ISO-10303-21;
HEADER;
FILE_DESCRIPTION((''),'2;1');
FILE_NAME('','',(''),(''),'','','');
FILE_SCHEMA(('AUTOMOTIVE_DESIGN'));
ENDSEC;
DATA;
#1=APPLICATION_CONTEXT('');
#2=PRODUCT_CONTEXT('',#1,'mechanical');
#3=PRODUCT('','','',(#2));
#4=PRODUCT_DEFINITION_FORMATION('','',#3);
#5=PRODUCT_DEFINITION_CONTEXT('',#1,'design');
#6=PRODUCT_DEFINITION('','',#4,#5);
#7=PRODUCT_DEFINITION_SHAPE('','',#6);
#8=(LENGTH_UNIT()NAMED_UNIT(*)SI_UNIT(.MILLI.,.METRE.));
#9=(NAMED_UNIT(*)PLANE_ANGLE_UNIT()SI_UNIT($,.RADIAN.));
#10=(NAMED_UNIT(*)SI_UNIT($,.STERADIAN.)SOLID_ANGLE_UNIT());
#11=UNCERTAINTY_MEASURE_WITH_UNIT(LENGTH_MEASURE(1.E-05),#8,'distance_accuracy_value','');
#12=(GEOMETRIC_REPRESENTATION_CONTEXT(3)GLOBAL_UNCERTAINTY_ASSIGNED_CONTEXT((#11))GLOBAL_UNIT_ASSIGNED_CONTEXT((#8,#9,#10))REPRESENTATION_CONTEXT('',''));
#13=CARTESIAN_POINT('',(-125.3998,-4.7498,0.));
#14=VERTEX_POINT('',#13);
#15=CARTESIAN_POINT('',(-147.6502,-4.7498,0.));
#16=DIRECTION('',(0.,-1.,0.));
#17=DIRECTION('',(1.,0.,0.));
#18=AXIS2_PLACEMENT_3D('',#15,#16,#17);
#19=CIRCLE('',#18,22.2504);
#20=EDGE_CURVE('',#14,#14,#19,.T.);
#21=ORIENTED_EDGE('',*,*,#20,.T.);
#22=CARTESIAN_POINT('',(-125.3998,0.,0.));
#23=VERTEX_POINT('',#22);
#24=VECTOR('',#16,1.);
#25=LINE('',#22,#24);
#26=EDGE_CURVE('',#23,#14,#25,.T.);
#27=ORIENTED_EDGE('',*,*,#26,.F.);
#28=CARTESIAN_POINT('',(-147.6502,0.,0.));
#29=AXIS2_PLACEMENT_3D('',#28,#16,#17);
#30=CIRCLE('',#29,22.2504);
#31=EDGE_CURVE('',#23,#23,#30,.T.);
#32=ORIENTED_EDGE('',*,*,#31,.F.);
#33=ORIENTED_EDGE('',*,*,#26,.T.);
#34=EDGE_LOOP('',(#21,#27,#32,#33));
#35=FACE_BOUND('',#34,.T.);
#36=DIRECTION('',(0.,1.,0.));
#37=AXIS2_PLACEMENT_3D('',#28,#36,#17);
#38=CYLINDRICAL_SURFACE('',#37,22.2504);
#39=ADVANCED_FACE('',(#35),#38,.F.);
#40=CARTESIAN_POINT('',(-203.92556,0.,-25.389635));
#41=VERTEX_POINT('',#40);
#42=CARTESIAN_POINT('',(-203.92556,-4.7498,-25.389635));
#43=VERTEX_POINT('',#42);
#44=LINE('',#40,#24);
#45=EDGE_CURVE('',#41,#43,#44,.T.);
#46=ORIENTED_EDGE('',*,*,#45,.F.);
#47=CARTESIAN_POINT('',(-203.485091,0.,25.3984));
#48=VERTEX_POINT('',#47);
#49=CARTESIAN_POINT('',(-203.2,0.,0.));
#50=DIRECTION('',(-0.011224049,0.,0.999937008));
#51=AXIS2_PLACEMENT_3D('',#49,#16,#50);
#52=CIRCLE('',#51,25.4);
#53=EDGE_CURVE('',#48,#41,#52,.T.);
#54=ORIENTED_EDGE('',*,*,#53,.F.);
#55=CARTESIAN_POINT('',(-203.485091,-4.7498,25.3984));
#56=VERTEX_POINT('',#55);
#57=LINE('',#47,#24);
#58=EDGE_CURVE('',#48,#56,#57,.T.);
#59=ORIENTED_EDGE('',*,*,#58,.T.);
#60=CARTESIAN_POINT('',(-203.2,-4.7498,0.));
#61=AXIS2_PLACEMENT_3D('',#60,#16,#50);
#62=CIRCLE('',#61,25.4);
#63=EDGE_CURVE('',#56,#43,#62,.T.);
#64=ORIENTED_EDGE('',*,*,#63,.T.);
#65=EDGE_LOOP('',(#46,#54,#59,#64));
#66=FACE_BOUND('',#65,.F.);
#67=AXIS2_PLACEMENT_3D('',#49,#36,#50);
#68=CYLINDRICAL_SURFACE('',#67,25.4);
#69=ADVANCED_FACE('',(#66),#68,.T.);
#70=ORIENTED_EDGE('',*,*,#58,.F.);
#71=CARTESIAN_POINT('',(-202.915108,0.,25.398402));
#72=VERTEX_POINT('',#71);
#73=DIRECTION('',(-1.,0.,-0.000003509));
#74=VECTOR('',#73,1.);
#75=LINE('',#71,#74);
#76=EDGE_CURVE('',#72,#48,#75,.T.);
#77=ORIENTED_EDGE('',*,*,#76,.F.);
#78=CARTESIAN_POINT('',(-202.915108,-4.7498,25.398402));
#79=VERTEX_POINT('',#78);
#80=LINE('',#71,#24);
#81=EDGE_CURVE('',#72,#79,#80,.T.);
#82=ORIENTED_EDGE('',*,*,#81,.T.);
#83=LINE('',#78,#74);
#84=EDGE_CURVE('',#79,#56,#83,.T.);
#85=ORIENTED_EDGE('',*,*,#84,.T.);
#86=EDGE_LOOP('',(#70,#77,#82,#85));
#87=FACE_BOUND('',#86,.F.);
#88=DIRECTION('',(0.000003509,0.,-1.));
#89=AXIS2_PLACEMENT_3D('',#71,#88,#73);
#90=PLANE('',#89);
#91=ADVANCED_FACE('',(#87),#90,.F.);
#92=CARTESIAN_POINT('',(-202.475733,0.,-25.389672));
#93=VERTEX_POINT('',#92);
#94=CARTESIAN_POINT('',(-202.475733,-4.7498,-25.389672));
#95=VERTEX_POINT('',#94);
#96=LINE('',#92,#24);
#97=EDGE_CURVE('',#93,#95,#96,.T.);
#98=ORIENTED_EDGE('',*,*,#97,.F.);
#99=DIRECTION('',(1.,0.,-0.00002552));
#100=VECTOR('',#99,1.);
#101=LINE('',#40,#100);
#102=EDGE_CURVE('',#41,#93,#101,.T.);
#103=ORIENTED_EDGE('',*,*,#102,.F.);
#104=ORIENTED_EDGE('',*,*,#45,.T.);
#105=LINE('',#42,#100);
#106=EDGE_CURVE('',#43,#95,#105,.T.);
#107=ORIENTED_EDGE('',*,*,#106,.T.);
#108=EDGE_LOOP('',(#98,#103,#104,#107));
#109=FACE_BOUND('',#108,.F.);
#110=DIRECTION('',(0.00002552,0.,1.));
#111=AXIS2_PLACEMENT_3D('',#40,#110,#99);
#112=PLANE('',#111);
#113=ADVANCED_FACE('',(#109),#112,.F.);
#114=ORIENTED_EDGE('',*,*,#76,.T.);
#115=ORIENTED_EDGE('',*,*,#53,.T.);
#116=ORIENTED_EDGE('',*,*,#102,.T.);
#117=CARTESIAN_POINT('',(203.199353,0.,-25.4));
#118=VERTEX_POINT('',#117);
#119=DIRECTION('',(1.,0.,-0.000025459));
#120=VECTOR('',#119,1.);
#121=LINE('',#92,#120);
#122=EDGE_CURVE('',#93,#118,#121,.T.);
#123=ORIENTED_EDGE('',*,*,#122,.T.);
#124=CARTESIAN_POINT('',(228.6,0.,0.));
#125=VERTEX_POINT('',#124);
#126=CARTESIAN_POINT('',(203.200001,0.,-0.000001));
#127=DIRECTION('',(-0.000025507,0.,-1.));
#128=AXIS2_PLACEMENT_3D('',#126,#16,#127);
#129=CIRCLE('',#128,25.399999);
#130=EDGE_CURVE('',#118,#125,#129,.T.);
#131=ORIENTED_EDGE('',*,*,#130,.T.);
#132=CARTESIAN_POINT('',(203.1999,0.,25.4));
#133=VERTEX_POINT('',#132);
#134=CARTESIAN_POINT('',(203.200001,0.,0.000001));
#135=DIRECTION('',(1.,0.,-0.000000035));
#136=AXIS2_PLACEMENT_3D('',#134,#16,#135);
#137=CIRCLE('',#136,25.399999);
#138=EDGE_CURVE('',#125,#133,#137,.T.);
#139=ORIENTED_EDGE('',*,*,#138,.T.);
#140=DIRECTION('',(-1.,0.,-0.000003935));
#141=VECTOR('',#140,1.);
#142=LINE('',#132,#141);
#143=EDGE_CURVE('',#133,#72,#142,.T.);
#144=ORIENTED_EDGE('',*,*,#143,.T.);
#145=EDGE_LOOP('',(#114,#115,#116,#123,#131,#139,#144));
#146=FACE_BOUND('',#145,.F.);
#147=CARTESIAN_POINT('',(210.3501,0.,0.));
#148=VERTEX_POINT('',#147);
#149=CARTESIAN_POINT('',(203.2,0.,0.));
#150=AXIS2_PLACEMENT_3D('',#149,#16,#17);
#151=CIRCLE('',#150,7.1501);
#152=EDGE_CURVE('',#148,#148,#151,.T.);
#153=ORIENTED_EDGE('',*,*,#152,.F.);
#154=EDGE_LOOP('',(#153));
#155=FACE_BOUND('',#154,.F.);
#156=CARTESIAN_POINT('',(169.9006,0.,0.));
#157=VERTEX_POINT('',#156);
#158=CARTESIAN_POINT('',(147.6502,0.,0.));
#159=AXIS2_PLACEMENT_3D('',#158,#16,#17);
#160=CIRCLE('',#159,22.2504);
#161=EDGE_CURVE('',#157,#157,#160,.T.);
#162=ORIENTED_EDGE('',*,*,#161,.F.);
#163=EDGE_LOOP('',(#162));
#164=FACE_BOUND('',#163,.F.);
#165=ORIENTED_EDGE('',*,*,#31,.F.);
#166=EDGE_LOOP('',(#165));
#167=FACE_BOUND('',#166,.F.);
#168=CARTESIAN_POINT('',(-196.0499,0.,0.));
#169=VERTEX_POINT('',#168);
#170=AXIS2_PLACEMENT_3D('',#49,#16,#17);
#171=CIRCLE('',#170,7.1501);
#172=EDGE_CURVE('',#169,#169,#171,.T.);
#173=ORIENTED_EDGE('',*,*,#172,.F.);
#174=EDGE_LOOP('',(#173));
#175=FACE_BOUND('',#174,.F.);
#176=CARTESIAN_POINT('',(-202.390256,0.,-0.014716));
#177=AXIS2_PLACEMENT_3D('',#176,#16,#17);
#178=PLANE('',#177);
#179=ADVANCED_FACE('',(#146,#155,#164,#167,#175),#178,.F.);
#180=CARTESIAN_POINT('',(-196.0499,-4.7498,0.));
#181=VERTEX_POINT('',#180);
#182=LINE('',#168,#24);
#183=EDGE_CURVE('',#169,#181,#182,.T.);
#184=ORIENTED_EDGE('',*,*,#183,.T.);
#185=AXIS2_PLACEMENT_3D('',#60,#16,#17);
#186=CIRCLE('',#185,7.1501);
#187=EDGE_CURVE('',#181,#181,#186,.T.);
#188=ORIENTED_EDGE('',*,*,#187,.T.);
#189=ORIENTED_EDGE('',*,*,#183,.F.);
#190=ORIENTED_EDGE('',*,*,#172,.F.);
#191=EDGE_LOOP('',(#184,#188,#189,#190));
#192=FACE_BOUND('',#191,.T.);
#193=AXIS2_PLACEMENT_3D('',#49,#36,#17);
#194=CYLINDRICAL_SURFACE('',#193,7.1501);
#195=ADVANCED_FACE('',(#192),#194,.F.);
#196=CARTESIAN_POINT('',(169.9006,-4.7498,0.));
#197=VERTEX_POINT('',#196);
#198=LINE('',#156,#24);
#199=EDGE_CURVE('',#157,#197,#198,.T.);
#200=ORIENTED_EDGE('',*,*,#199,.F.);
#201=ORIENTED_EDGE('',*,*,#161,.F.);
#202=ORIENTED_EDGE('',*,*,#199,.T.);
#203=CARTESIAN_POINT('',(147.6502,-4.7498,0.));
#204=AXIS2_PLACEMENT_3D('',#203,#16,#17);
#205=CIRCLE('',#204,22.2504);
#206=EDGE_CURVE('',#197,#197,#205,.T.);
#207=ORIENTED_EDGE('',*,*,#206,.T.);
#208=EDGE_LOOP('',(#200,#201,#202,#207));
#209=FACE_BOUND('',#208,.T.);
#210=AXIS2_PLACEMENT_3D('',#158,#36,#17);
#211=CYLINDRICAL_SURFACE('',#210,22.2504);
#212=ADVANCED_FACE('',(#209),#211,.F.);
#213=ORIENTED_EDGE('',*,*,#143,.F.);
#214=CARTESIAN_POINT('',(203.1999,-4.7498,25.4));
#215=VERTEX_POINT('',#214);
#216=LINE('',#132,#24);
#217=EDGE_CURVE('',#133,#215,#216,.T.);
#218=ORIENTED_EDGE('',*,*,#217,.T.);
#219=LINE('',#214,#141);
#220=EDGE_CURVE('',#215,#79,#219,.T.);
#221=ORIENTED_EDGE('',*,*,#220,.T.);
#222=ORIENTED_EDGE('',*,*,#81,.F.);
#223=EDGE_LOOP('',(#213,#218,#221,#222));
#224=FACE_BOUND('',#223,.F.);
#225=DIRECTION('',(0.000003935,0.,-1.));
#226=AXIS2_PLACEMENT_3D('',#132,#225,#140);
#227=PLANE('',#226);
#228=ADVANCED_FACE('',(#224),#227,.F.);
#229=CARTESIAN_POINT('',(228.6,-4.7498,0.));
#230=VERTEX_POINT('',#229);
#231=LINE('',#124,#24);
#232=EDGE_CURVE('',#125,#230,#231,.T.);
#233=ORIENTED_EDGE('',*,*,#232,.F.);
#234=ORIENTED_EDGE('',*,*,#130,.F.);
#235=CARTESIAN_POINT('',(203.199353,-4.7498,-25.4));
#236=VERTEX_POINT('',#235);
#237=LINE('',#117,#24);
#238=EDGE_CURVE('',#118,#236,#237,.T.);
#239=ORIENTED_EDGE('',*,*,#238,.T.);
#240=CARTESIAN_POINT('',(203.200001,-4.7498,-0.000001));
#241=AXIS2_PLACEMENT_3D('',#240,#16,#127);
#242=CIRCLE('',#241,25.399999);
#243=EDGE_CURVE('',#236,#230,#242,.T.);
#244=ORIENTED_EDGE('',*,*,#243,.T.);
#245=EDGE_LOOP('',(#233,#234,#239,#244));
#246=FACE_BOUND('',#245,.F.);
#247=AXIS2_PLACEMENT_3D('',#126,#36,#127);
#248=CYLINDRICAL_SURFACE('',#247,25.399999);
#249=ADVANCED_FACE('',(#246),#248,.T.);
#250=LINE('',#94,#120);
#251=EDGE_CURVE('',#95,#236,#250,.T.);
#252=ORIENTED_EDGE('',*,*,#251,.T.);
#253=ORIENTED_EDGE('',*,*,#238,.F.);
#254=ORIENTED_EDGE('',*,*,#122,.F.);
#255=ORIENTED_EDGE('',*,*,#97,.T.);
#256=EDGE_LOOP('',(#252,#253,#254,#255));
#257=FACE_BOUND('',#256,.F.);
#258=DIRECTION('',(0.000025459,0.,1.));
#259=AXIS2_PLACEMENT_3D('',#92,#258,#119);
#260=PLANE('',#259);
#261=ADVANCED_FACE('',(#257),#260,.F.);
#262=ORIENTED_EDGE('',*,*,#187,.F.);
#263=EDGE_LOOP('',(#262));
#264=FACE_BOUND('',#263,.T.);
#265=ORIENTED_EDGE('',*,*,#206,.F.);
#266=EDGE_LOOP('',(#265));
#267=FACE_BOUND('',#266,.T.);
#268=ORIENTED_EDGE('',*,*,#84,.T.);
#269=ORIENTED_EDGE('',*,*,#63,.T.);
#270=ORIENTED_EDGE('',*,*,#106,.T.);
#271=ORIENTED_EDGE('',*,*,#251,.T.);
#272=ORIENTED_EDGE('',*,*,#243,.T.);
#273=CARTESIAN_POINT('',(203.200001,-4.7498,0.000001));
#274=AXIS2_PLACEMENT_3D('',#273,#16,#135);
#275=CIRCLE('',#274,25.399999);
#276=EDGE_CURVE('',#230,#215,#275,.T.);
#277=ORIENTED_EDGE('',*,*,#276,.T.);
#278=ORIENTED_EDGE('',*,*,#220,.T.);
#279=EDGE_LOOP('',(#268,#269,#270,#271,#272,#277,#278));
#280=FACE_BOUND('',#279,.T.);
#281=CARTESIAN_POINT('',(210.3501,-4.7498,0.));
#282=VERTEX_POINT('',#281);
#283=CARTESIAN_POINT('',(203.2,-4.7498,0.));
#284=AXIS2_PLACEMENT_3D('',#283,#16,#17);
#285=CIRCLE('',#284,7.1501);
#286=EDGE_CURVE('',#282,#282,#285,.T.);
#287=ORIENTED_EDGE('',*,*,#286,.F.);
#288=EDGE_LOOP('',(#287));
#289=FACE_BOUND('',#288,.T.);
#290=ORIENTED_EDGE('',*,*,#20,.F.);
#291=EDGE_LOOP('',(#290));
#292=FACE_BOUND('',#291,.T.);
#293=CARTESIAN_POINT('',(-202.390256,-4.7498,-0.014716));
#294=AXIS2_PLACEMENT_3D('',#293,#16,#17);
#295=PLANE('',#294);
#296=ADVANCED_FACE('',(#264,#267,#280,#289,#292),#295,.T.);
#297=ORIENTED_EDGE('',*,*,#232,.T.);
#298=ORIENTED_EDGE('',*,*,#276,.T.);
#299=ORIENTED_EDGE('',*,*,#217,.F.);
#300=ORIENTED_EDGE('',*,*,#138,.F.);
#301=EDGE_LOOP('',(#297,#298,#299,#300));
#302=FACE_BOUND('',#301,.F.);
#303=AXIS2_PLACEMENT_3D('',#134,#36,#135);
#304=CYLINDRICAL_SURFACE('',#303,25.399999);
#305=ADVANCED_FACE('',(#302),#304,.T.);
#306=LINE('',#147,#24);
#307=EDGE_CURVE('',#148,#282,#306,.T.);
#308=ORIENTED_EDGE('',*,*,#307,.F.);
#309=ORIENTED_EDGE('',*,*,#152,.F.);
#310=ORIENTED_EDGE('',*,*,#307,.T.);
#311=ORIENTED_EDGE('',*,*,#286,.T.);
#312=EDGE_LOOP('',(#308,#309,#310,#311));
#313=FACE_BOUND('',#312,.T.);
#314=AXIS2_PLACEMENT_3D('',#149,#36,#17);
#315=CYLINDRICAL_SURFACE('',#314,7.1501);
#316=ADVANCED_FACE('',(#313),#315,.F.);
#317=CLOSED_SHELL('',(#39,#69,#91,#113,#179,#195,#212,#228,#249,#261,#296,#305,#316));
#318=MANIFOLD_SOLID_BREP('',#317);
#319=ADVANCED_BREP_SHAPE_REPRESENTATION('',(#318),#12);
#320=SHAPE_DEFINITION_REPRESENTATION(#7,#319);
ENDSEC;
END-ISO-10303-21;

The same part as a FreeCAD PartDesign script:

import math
import FreeCAD as App
import Part
import Sketcher

V = App.Vector
Q = App.Units.Quantity

doc = App.newDocument("Part")
body = doc.addObject("PartDesign::Body", "Body")

# Sketch on XZ plane
sketch1 = doc.addObject("Sketcher::SketchObject", "Sketch")
body.addObject(sketch1)
sketch1.AttachmentSupport = (doc.XZ_Plane, [""])
sketch1.MapMode = "FlatFace"
sketch1.addGeometry(Part.LineSegment(V(-202.915108, 25.398402, 0), V(-203.485091, 25.3984, 0)), False)
sketch1.addGeometry(Part.ArcOfCircle(Part.Circle(V(-203.2, 0, 0), V(0, 0, 1), 25.4), math.radians(90.643104), math.radians(268.363103)), False)
sketch1.addGeometry(Part.LineSegment(V(-203.92556, -25.389635, 0), V(-202.475733, -25.389672, 0)), False)
sketch1.addGeometry(Part.LineSegment(V(-202.475733, -25.389672, 0), V(203.199353, -25.4, 0)), False)
sketch1.addGeometry(Part.ArcOfCircle(Part.Circle(V(203.200001, -0.000001, 0), V(0, 0, 1), 25.399999), math.radians(-90.001461), math.radians(0.000002)), False)
sketch1.addGeometry(Part.ArcOfCircle(Part.Circle(V(203.200001, 0.000001, 0), V(0, 0, 1), 25.399999), math.radians(-0.000002), math.radians(90.000228)), False)
sketch1.addGeometry(Part.LineSegment(V(203.1999, 25.4, 0), V(-202.915108, 25.398402, 0)), False)
sketch1.addGeometry(Part.Circle(V(-203.2, 0, 0), V(0, 0, 1), 7.1501), False)
sketch1.addGeometry(Part.Circle(V(-147.6502, 0, 0), V(0, 0, 1), 22.2504), False)
sketch1.addGeometry(Part.Circle(V(147.6502, 0, 0), V(0, 0, 1), 22.2504), False)
sketch1.addGeometry(Part.Circle(V(203.2, 0, 0), V(0, 0, 1), 7.1501), False)
sketch1.addConstraint(Sketcher.Constraint("Coincident", 0, 2, 1, 1))
sketch1.addConstraint(Sketcher.Constraint("Coincident", 1, 2, 2, 1))
sketch1.addConstraint(Sketcher.Constraint("Coincident", 2, 2, 3, 1))
sketch1.addConstraint(Sketcher.Constraint("Tangent", 3, 2, 4, 1))
sketch1.addConstraint(Sketcher.Constraint("Tangent", 4, 2, 5, 1))
sketch1.addConstraint(Sketcher.Constraint("Tangent", 5, 2, 6, 1))
sketch1.addConstraint(Sketcher.Constraint("Coincident", 6, 2, 0, 1))
sketch1.addConstraint(Sketcher.Constraint("Coincident", 7, 3, 1, 3))
sketch1.addConstraint(Sketcher.Constraint("Coincident", 10, 3, 4, 3))
sketch1.addConstraint(Sketcher.Constraint("Equal", 1, 4))
sketch1.addConstraint(Sketcher.Constraint("Equal", 4, 5))
sketch1.addConstraint(Sketcher.Constraint("Equal", 8, 9))
sketch1.addConstraint(Sketcher.Constraint("Equal", 7, 10))
sketch1.addConstraint(Sketcher.Constraint("Symmetric", 1, 3, 4, 3, -1, 1))
sketch1.addConstraint(Sketcher.Constraint("Symmetric", 8, 3, 9, 3, -1, 1))
sketch1.addConstraint(Sketcher.Constraint("PointOnObject", 1, 3, -1))
sketch1.addConstraint(Sketcher.Constraint("PointOnObject", 8, 3, -1))
sketch1.addConstraint(Sketcher.Constraint("PointOnObject", 4, 2, -1))
sketch1.addConstraint(Sketcher.Constraint("Parallel", 2, 3))
sketch1.addConstraint(Sketcher.Constraint("Parallel", 0, 6))
sketch1.addConstraint(Sketcher.Constraint("Radius", 1, Q("1 in")))
sketch1.addConstraint(Sketcher.Constraint("Diameter", 7, Q("0.563 in")))
sketch1.addConstraint(Sketcher.Constraint("Diameter", 8, Q("1.752 in")))
sketch1.addConstraint(Sketcher.Constraint("DistanceX", 1, 3, -1, 1, Q("8 in")))
sketch1.addConstraint(Sketcher.Constraint("DistanceX", 8, 3, -1, 1, Q("5.813 in")))
sketch1.addConstraint(Sketcher.Constraint("DistanceY", -1, 1, 0, 2, Q("25.3984 mm")))
sketch1.addConstraint(Sketcher.Constraint("Distance", 6, Q("406.115008 mm")))
sketch1.addConstraint(Sketcher.Constraint("DistanceX", 1, 2, -1, 1, Q("203.92556 mm")))
sketch1.addConstraint(Sketcher.Constraint("DistanceX", 0, 2, 2, 2, Q("1.009358 mm")))
pad1 = doc.addObject("PartDesign::Pad", "Pad")
body.addObject(pad1)
pad1.Profile = sketch1
pad1.Length = Q("0.187 in")

doc.recompute()
